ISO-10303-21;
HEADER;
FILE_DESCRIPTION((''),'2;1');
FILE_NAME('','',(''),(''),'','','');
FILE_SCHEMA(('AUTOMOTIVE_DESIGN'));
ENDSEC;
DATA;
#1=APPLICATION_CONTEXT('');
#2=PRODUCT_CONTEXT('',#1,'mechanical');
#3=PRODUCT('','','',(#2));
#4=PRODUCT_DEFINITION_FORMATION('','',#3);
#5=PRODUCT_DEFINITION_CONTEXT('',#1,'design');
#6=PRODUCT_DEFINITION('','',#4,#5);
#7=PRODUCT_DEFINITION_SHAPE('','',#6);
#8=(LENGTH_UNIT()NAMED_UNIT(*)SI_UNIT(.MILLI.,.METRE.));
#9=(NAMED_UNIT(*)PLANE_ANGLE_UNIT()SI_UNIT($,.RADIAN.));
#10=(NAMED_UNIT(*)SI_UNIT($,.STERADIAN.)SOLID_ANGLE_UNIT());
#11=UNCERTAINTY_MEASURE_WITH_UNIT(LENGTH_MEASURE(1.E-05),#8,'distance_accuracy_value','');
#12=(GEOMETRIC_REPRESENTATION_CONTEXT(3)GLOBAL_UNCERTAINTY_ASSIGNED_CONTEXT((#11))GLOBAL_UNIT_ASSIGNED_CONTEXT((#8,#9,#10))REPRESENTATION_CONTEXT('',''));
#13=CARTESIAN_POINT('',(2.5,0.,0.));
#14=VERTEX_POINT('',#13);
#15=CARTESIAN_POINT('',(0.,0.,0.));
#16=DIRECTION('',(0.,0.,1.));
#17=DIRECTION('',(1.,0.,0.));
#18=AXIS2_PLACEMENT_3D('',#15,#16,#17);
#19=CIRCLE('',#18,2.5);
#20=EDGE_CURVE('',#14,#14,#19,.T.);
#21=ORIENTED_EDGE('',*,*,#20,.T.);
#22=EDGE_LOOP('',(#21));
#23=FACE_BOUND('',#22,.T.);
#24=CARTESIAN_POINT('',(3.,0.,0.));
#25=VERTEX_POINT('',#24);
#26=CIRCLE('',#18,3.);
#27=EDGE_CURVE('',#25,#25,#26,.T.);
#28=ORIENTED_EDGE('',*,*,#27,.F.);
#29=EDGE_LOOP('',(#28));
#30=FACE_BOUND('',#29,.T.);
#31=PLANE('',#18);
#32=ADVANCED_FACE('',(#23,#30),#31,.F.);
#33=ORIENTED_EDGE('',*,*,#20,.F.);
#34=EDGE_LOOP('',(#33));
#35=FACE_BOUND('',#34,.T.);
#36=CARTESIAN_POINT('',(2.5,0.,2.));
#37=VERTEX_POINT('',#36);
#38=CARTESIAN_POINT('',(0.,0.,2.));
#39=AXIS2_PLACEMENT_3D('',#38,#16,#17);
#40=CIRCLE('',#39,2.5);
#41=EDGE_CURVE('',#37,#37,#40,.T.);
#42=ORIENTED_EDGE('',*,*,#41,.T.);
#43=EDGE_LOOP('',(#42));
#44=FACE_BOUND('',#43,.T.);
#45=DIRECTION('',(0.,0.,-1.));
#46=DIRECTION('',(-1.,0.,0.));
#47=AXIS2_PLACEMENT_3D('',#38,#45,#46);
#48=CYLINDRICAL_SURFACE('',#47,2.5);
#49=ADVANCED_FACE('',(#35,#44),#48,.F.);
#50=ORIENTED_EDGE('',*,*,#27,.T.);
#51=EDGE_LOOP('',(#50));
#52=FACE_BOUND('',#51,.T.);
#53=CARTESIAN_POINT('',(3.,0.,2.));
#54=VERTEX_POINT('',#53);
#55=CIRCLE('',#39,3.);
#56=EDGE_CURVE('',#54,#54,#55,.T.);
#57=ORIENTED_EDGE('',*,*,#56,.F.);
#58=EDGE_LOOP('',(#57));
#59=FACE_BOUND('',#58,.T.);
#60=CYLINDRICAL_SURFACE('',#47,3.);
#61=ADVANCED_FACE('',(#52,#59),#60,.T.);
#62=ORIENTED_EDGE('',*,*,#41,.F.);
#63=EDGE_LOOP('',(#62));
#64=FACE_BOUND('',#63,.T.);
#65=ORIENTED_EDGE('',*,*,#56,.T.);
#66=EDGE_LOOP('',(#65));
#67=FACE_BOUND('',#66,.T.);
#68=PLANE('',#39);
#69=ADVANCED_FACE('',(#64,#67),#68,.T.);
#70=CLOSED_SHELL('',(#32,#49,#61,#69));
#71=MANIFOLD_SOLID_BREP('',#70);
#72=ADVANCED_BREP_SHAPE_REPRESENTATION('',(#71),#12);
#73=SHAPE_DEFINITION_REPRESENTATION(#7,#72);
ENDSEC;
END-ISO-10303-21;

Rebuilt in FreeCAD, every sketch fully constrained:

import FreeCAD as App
import Part
import Sketcher
from FreeCAD import Vector

doc = App.newDocument("Part")
body = doc.addObject("PartDesign::Body", "Body")

sketch1 = body.newObject("Sketcher::SketchObject", "Sketch")
sketch1.AttachmentSupport = (doc.getObject("XY_Plane"), [""])
sketch1.MapMode = "FlatFace"
sketch1.addGeometry([
    Part.Circle(Vector(0, 0, 0), Vector(0, 0, 1), 3),
    Part.Circle(Vector(0, 0, 0), Vector(0, 0, 1), 2.5),
], False)
sketch1.addConstraint([
    Sketcher.Constraint("Coincident", 0, 3, -1, 1),
    Sketcher.Constraint("Coincident", 1, 3, -1, 1),
    Sketcher.Constraint("Diameter", 0, 6.0),
    Sketcher.Constraint("Diameter", 1, 5.0),
])
pad1 = body.newObject("PartDesign::Pad", "Pad")
pad1.Profile = sketch1
pad1.Length = 2

doc.recompute()
